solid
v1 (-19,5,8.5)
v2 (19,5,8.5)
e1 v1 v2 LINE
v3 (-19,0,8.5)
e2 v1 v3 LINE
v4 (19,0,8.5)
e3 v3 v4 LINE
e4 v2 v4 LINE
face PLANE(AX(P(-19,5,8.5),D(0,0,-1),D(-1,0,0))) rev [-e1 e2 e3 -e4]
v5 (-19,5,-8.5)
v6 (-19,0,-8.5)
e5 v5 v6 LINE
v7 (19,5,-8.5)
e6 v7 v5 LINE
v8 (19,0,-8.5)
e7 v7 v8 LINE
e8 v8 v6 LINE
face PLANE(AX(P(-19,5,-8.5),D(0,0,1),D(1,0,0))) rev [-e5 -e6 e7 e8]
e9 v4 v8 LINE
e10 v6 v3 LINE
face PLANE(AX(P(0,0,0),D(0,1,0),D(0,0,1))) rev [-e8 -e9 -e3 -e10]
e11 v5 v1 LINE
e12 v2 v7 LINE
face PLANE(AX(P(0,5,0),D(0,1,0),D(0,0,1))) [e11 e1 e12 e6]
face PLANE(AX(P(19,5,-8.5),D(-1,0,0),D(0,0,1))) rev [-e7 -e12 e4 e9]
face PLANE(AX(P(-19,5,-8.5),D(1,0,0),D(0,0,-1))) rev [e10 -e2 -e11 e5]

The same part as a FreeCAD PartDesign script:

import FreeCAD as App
import Part
import Sketcher
from FreeCAD import Vector

doc = App.newDocument("Part")
params = doc.addObject("Spreadsheet::Sheet", "Params")
for row, (alias, value) in enumerate([
    ("sketch1_width", "38 mm"),
    ("sketch1_height", "17 mm"),
    ("pad1_length", "5 mm"),
], start=1):
    params.set(f"A{row}", alias)
    params.set(f"B{row}", "=" + value)
    params.setAlias(f"B{row}", alias)

body = doc.addObject("PartDesign::Body", "Body")

# Sketch on XZ plane
sketch1 = doc.addObject("Sketcher::SketchObject", "Sketch")
body.addObject(sketch1)
sketch1.AttachmentSupport = (doc.XZ_Plane, [""])
sketch1.MapMode = "FlatFace"
sketch1.addGeometry([
    Part.LineSegment(Vector(-19, -8.5, 0), Vector(-19, 8.5, 0)),
    Part.LineSegment(Vector(-19, 8.5, 0), Vector(19, 8.5, 0)),
    Part.LineSegment(Vector(19, 8.5, 0), Vector(19, -8.5, 0)),
    Part.LineSegment(Vector(19, -8.5, 0), Vector(-19, -8.5, 0)),
], False)
sketch1.addConstraint([
    Sketcher.Constraint("Coincident", 0, 2, 1, 1),
    Sketcher.Constraint("Coincident", 1, 2, 2, 1),
    Sketcher.Constraint("Coincident", 2, 2, 3, 1),
    Sketcher.Constraint("Coincident", 3, 2, 0, 1),
    Sketcher.Constraint("Vertical", 0),
    Sketcher.Constraint("Horizontal", 1),
    Sketcher.Constraint("Vertical", 2),
    Sketcher.Constraint("Horizontal", 3),
    Sketcher.Constraint("Symmetric", 0, 2, 2, 2, -1, 1),
    Sketcher.Constraint("DistanceX", 1, 1, 1, 2, 38.0),
    Sketcher.Constraint("DistanceY", 0, 1, 0, 2, 17.0),
])
sketch1.setExpression("Constraints[9]", "Params.sketch1_width")
sketch1.setExpression("Constraints[10]", "Params.sketch1_height")
pad1 = doc.addObject("PartDesign::Pad", "Pad")
body.addObject(pad1)
pad1.Profile = sketch1
pad1.setExpression("Length", "Params.pad1_length")
pad1.Reversed = True

doc.recompute()
